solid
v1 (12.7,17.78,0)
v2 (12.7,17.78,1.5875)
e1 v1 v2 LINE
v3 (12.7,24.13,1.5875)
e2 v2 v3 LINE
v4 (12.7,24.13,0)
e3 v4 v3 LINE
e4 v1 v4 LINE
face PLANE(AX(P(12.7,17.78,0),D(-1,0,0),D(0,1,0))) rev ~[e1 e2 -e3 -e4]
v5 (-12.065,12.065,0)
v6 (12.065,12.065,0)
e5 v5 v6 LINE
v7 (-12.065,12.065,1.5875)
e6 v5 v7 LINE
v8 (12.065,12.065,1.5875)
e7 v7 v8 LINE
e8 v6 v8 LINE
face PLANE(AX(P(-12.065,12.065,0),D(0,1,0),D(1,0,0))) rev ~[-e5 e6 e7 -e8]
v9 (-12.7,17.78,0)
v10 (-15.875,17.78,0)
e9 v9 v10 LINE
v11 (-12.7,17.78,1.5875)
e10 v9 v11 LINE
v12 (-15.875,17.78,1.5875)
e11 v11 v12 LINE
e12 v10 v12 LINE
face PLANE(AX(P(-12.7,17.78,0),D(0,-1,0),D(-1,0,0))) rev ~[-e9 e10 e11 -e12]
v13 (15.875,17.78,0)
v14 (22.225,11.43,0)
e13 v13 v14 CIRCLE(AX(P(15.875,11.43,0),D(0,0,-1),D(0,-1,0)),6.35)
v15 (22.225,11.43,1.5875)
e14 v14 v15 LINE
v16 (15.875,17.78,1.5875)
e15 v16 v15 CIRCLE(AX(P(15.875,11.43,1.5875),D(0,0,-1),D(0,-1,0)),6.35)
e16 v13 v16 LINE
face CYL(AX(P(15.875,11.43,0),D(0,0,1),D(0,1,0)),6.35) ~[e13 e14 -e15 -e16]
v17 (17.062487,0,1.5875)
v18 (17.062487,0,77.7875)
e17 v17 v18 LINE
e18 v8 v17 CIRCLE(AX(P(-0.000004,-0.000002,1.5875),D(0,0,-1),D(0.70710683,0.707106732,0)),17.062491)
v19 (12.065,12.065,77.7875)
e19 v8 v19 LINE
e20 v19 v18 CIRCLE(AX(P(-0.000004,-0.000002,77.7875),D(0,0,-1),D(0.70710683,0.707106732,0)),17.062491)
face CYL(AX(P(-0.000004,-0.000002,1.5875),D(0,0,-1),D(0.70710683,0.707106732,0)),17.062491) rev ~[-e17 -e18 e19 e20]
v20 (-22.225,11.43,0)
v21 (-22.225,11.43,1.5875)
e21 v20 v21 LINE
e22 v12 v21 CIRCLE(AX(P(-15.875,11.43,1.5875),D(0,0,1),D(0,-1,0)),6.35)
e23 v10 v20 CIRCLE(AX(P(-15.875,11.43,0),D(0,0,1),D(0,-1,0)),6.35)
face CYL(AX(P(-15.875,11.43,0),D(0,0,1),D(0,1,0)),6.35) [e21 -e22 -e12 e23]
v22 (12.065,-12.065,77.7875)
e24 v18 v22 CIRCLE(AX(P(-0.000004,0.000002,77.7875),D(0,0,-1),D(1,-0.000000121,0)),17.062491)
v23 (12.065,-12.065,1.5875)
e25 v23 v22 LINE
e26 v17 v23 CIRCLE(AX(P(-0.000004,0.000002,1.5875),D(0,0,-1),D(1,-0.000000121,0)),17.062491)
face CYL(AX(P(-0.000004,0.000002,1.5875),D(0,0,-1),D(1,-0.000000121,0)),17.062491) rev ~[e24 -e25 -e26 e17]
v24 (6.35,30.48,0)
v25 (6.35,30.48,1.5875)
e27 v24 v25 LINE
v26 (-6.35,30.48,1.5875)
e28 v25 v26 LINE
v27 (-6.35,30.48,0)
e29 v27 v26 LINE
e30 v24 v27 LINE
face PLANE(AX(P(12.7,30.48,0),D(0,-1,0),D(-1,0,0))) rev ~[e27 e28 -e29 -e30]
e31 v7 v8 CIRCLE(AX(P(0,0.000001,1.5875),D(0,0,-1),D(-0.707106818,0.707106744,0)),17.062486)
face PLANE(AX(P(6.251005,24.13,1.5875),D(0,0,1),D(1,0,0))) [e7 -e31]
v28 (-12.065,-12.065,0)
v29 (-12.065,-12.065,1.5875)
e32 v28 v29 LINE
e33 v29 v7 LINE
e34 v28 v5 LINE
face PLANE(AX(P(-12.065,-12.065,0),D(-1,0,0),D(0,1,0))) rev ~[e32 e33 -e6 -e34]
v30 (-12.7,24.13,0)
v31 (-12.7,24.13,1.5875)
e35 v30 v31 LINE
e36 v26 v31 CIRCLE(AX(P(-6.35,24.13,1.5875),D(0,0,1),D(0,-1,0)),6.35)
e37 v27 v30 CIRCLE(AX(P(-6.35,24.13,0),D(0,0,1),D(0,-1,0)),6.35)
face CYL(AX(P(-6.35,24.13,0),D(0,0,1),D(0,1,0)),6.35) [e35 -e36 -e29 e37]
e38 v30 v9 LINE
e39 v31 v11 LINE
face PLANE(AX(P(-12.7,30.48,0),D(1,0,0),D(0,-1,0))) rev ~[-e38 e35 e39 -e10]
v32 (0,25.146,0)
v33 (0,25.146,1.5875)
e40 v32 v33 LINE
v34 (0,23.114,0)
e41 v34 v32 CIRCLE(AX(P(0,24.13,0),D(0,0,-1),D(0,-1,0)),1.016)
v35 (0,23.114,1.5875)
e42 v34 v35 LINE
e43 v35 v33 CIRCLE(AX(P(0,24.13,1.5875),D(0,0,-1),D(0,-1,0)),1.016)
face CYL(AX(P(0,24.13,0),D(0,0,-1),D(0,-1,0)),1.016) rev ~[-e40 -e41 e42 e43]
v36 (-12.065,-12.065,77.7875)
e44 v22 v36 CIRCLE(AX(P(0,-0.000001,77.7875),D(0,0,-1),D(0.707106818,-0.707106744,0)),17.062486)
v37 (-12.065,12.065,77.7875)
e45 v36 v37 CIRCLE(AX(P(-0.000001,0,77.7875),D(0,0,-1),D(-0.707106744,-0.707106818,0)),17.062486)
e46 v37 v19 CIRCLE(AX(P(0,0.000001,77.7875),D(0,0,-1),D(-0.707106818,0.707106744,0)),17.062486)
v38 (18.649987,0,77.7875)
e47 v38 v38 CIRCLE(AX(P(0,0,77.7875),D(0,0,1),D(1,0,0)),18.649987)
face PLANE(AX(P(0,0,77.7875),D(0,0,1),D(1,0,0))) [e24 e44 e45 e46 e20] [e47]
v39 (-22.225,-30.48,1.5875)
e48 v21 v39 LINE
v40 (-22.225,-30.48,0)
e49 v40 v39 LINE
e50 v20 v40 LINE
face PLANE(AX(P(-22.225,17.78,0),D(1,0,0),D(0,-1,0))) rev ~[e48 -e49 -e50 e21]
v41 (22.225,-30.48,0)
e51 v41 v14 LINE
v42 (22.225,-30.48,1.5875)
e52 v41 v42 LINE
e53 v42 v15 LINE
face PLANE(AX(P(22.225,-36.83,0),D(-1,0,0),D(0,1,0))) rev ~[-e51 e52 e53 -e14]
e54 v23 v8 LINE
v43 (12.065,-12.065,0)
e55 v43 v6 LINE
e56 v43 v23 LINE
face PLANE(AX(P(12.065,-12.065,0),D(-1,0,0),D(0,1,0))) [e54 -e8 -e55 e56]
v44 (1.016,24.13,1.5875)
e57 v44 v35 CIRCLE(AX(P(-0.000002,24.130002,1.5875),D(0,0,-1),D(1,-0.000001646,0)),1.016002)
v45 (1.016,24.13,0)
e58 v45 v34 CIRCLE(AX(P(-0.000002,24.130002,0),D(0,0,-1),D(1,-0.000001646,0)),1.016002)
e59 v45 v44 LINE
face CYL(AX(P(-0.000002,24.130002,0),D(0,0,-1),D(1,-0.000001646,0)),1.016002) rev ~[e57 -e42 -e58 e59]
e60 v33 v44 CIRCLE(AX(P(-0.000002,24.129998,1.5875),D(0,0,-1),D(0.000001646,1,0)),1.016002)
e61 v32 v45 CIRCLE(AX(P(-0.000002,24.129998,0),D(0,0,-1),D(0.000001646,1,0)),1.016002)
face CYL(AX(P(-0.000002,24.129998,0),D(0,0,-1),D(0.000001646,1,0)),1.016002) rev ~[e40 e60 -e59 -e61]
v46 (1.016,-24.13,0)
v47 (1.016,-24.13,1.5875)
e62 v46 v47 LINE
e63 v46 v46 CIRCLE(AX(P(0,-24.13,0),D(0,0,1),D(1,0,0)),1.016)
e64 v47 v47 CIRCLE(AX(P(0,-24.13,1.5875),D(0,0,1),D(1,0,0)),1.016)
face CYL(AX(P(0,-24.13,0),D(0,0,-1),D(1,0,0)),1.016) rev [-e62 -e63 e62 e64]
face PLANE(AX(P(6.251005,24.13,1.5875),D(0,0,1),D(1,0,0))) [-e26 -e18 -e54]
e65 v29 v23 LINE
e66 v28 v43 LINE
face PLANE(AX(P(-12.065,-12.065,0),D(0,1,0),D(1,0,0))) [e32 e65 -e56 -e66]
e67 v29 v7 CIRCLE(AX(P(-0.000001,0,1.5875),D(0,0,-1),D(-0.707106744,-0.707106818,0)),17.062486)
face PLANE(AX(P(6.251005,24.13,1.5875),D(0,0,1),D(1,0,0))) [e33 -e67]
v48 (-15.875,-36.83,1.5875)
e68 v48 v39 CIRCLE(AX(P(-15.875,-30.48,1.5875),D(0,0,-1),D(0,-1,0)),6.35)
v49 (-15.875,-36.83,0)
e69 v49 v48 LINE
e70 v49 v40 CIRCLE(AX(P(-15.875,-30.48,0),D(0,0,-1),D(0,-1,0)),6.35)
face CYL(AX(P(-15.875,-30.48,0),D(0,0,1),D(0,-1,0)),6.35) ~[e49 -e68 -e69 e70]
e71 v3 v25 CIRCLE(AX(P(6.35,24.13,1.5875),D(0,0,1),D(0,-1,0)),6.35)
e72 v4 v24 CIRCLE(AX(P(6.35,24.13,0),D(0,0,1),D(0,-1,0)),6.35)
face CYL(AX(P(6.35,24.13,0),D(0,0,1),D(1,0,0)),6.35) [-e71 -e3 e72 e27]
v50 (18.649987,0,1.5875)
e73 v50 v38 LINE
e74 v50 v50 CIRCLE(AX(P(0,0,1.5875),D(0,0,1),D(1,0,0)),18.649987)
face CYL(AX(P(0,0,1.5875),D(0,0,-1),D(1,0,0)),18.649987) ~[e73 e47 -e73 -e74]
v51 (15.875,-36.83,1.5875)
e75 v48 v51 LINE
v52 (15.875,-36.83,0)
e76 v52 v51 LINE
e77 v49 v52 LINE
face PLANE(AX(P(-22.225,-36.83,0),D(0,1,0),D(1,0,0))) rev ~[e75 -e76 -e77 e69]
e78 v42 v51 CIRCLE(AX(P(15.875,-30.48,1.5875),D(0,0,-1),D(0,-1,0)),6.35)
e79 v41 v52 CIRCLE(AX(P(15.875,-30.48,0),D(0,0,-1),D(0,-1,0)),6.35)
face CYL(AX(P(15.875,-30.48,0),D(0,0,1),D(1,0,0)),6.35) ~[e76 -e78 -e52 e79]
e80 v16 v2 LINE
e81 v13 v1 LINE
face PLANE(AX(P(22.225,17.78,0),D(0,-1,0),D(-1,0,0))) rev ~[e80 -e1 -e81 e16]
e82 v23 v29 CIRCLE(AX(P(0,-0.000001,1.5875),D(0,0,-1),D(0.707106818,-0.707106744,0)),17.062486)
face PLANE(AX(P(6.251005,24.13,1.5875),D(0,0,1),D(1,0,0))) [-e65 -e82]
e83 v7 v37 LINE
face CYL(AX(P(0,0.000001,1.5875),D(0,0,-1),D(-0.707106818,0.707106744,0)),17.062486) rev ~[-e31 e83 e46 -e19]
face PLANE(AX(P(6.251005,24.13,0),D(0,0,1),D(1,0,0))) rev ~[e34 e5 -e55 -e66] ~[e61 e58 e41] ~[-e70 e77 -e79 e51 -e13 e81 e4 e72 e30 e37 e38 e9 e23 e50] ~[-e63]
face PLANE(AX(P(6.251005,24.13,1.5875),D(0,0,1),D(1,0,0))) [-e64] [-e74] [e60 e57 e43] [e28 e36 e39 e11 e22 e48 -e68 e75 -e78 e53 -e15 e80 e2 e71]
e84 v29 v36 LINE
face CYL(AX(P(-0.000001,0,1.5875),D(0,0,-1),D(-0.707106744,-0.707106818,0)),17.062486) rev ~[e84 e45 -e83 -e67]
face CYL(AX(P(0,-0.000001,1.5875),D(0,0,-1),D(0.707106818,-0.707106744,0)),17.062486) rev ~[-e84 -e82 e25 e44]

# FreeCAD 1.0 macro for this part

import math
import FreeCAD as App
import Part
import Sketcher
Q = App.Units.Quantity


def edges_at(feature, points):
    """Names of the edges that pass closest to the given points."""
    edges = feature.Shape.Edges
    near = lambda p: min(range(len(edges)), key=lambda i: edges[i].distToShape(Part.Vertex(*p))[0])
    return sorted({f"Edge{near(p) + 1}" for p in points})

doc = App.newDocument("Part")
params = doc.addObject("Spreadsheet::Sheet", "Params")
for row, (alias, value) in enumerate([
    ("sketch1_diameter", "0.08 in"),
    ("sketch1_width", "1 in"),
    ("sketch1_height", "0.5 in"),
    ("sketch1_width2", "1.75 in"),
    ("sketch1_width3", "0.95 in"),
    ("pad1_length", "0.0625 in"),
    ("fillet_radius", "0.25 in"),
    ("pad2_length", "3 in"),
], start=1):
    params.set(f"A{row}", alias)
    params.set(f"B{row}", "=" + value)
    params.setAlias(f"B{row}", alias)

body = doc.addObject("PartDesign::Body", "Body")

sketch1 = doc.addObject("Sketcher::SketchObject", "Sketch")
body.addObject(sketch1)
sketch1.AttachmentSupport = (doc.XY_Plane, [""])
sketch1.MapMode = "FlatFace"
sketch1.addGeometry([
    Part.LineSegment(App.Vector(12.7, 17.8, 0), App.Vector(12.7, 30.5, 0)),
    Part.LineSegment(App.Vector(12.7, 30.5, 0), App.Vector(-12.7, 30.5, 0)),
    Part.LineSegment(App.Vector(-12.7, 30.5, 0), App.Vector(-12.7, 17.8, 0)),
    Part.LineSegment(App.Vector(-12.7, 17.8, 0), App.Vector(-22.2, 17.8, 0)),
    Part.LineSegment(App.Vector(-22.2, 17.8, 0), App.Vector(-22.2, -36.8, 0)),
    Part.LineSegment(App.Vector(-22.2, -36.8, 0), App.Vector(22.2, -36.8, 0)),
    Part.LineSegment(App.Vector(22.2, -36.8, 0), App.Vector(22.2, 17.8, 0)),
    Part.LineSegment(App.Vector(22.2, 17.8, 0), App.Vector(12.7, 17.8, 0)),
    Part.Circle(App.Vector(0, -24.1, 0), App.Vector(0, 0, 1), 1),
    Part.LineSegment(App.Vector(12.1, -12.1, 0), App.Vector(-12.1, -12.1, 0)),
    Part.LineSegment(App.Vector(-12.1, -12.1, 0), App.Vector(-12.1, 12.1, 0)),
    Part.LineSegment(App.Vector(-12.1, 12.1, 0), App.Vector(12.1, 12.1, 0)),
    Part.LineSegment(App.Vector(12.1, 12.1, 0), App.Vector(12.1, -12.1, 0)),
    Part.ArcOfCircle(Part.Circle(App.Vector(0, 24.1, 0), App.Vector(0, 0, 1), 1), math.radians(0), math.radians(90)),
    Part.ArcOfCircle(Part.Circle(App.Vector(0, 24.1, 0), App.Vector(0, 0, 1), 1), math.radians(-90), math.radians(0)),
    Part.ArcOfCircle(Part.Circle(App.Vector(0, 24.1, 0), App.Vector(0, 0, 1), 1), math.radians(90), math.radians(270)),
], False)
sketch1.addConstraint([
    Sketcher.Constraint("Coincident", 0, 2, 1, 1),
    Sketcher.Constraint("Coincident", 1, 2, 2, 1),
    Sketcher.Constraint("Coincident", 2, 2, 3, 1),
    Sketcher.Constraint("Coincident", 3, 2, 4, 1),
    Sketcher.Constraint("Coincident", 4, 2, 5, 1),
    Sketcher.Constraint("Coincident", 5, 2, 6, 1),
    Sketcher.Constraint("Coincident", 6, 2, 7, 1),
    Sketcher.Constraint("Coincident", 7, 2, 0, 1),
    Sketcher.Constraint("Coincident", 9, 2, 10, 1),
    Sketcher.Constraint("Coincident", 10, 2, 11, 1),
    Sketcher.Constraint("Coincident", 11, 2, 12, 1),
    Sketcher.Constraint("Coincident", 12, 2, 9, 1),
    Sketcher.Constraint("Coincident", 13, 1, 14, 2),
    Sketcher.Constraint("Tangent", 14, 1, 15, 2),
    Sketcher.Constraint("Tangent", 15, 1, 13, 2),
    Sketcher.Constraint("Vertical", 0),
    Sketcher.Constraint("Horizontal", 1),
    Sketcher.Constraint("Vertical", 2),
    Sketcher.Constraint("Horizontal", 3),
    Sketcher.Constraint("Vertical", 4),
    Sketcher.Constraint("Horizontal", 5),
    Sketcher.Constraint("Vertical", 6),
    Sketcher.Constraint("Horizontal", 7),
    Sketcher.Constraint("Horizontal", 9),
    Sketcher.Constraint("Vertical", 10),
    Sketcher.Constraint("Horizontal", 11),
    Sketcher.Constraint("Vertical", 12),
    Sketcher.Constraint("Equal", 8, 13),
    Sketcher.Constraint("Equal", 14, 15),
    Sketcher.Constraint("Symmetric", 8, 3, 13, 3, -1, 1),
    Sketcher.Constraint("Symmetric", 9, 2, 11, 2, -1, 1),
    Sketcher.Constraint("Symmetric", 3, 2, 6, 2, -2),
    Sketcher.Constraint("PointOnObject", 8, 3, -2),
    Sketcher.Constraint("PointOnObject", 14, 1, -2),
    Sketcher.Constraint("PointOnObject", 15, 1, -2),
    Sketcher.Constraint("Horizontal", 15, 3, 13, 1),
    Sketcher.Constraint("Equal", 3, 7),
    Sketcher.Constraint("Equal", 11, 10),
    Sketcher.Constraint("Diameter", 8, Q("0.08 in")),
    Sketcher.Constraint("DistanceX", 1, 2, 1, 1, Q("1 in")),
    Sketcher.Constraint("DistanceY", 0, 1, 0, 2, Q("0.5 in")),
    Sketcher.Constraint("DistanceX", 5, 1, 5, 2, Q("1.75 in")),
    Sketcher.Constraint("DistanceX", 9, 2, 9, 1, Q("0.95 in")),
    Sketcher.Constraint("DistanceY", 4, 2, 4, 1, Q("2.15 in")),
    Sketcher.Constraint("DistanceY", -1, 1, 0, 2, Q("1.2 in")),
    Sketcher.Constraint("DistanceY", 8, 3, 13, 3, Q("1.8999999 in")),
])
sketch1.setExpression("Constraints[38]", "Params.sketch1_diameter")
sketch1.setExpression("Constraints[39]", "Params.sketch1_width")
sketch1.setExpression("Constraints[40]", "Params.sketch1_height")
sketch1.setExpression("Constraints[41]", "Params.sketch1_width2")
sketch1.setExpression("Constraints[42]", "Params.sketch1_width3")
pad1 = doc.addObject("PartDesign::Pad", "Pad")
body.addObject(pad1)
pad1.Profile = sketch1
pad1.setExpression("Length", "Params.pad1_length")
doc.recompute()

fillet = doc.addObject("PartDesign::Fillet", "Fillet")
body.addObject(fillet)
fillet.Base = (pad1, edges_at(pad1, [
    (-12.7, 30.48, 0.794),
    (-22.225, 17.78, 0.794),
    (12.7, 30.48, 0.794),
    (22.225, 17.78, 0.794),
    (22.225, -36.83, 0.794),
    (-22.225, -36.83, 0.794),
]))
fillet.setExpression("Radius", "Params.fillet_radius")

sketch2 = doc.addObject("Sketcher::SketchObject", "Sketch001")
body.addObject(sketch2)
sketch2.AttachmentSupport = (doc.XY_Plane, [""])
sketch2.MapMode = "FlatFace"
sketch2.AttachmentOffset = App.Placement(App.Vector(0, 0, 0.0625 * 25.4), App.Rotation())
sketch2.addGeometry([
    Part.Circle(App.Vector(0, 0, 0), App.Vector(0, 0, 1), 19),
    Part.ArcOfCircle(Part.Circle(App.Vector(0, 0, 0), App.Vector(0, 0, 1), 17), math.radians(45), math.radians(135)),
    Part.ArcOfCircle(Part.Circle(App.Vector(0, 0, 0), App.Vector(0, 0, 1), 17), math.radians(0), math.radians(45)),
    Part.ArcOfCircle(Part.Circle(App.Vector(0, 0, 0), App.Vector(0, 0, 1), 17), math.radians(-45), math.radians(0)),
    Part.ArcOfCircle(Part.Circle(App.Vector(0, 0, 0), App.Vector(0, 0, 1), 17), math.radians(-135), math.radians(-45)),
    Part.ArcOfCircle(Part.Circle(App.Vector(0, 0, 0), App.Vector(0, 0, 1), 17), math.radians(135), math.radians(225)),
], False)
sketch2.addConstraint([
    Sketcher.Constraint("Tangent", 1, 1, 2, 2),
    Sketcher.Constraint("Tangent", 2, 1, 3, 2),
    Sketcher.Constraint("Tangent", 3, 1, 4, 2),
    Sketcher.Constraint("Tangent", 4, 1, 5, 2),
    Sketcher.Constraint("Tangent", 5, 1, 1, 2),
    Sketcher.Constraint("Coincident", 0, 3, -1, 1),
    Sketcher.Constraint("Coincident", 1, 3, -1, 1),
    Sketcher.Constraint("Coincident", 3, 3, -1, 1),
    Sketcher.Constraint("PointOnObject", 2, 1, -1),
    Sketcher.Constraint("Horizontal", 3, 1, 4, 1),
    Sketcher.Constraint("Horizontal", 1, 1, 5, 1),
    Sketcher.Constraint("Vertical", 1, 1, 3, 1),
    Sketcher.Constraint("DistanceX", -1, 1, 1, 1, Q("0.475 in")),
    Sketcher.Constraint("DistanceY", -1, 1, 1, 1, Q("0.475 in")),
    Sketcher.Constraint("Diameter", 0, Q("37.299974 mm")),
])
pad2 = doc.addObject("PartDesign::Pad", "Pad001")
body.addObject(pad2)
pad2.Profile = sketch2
pad2.setExpression("Length", "Params.pad2_length")

doc.recompute()
